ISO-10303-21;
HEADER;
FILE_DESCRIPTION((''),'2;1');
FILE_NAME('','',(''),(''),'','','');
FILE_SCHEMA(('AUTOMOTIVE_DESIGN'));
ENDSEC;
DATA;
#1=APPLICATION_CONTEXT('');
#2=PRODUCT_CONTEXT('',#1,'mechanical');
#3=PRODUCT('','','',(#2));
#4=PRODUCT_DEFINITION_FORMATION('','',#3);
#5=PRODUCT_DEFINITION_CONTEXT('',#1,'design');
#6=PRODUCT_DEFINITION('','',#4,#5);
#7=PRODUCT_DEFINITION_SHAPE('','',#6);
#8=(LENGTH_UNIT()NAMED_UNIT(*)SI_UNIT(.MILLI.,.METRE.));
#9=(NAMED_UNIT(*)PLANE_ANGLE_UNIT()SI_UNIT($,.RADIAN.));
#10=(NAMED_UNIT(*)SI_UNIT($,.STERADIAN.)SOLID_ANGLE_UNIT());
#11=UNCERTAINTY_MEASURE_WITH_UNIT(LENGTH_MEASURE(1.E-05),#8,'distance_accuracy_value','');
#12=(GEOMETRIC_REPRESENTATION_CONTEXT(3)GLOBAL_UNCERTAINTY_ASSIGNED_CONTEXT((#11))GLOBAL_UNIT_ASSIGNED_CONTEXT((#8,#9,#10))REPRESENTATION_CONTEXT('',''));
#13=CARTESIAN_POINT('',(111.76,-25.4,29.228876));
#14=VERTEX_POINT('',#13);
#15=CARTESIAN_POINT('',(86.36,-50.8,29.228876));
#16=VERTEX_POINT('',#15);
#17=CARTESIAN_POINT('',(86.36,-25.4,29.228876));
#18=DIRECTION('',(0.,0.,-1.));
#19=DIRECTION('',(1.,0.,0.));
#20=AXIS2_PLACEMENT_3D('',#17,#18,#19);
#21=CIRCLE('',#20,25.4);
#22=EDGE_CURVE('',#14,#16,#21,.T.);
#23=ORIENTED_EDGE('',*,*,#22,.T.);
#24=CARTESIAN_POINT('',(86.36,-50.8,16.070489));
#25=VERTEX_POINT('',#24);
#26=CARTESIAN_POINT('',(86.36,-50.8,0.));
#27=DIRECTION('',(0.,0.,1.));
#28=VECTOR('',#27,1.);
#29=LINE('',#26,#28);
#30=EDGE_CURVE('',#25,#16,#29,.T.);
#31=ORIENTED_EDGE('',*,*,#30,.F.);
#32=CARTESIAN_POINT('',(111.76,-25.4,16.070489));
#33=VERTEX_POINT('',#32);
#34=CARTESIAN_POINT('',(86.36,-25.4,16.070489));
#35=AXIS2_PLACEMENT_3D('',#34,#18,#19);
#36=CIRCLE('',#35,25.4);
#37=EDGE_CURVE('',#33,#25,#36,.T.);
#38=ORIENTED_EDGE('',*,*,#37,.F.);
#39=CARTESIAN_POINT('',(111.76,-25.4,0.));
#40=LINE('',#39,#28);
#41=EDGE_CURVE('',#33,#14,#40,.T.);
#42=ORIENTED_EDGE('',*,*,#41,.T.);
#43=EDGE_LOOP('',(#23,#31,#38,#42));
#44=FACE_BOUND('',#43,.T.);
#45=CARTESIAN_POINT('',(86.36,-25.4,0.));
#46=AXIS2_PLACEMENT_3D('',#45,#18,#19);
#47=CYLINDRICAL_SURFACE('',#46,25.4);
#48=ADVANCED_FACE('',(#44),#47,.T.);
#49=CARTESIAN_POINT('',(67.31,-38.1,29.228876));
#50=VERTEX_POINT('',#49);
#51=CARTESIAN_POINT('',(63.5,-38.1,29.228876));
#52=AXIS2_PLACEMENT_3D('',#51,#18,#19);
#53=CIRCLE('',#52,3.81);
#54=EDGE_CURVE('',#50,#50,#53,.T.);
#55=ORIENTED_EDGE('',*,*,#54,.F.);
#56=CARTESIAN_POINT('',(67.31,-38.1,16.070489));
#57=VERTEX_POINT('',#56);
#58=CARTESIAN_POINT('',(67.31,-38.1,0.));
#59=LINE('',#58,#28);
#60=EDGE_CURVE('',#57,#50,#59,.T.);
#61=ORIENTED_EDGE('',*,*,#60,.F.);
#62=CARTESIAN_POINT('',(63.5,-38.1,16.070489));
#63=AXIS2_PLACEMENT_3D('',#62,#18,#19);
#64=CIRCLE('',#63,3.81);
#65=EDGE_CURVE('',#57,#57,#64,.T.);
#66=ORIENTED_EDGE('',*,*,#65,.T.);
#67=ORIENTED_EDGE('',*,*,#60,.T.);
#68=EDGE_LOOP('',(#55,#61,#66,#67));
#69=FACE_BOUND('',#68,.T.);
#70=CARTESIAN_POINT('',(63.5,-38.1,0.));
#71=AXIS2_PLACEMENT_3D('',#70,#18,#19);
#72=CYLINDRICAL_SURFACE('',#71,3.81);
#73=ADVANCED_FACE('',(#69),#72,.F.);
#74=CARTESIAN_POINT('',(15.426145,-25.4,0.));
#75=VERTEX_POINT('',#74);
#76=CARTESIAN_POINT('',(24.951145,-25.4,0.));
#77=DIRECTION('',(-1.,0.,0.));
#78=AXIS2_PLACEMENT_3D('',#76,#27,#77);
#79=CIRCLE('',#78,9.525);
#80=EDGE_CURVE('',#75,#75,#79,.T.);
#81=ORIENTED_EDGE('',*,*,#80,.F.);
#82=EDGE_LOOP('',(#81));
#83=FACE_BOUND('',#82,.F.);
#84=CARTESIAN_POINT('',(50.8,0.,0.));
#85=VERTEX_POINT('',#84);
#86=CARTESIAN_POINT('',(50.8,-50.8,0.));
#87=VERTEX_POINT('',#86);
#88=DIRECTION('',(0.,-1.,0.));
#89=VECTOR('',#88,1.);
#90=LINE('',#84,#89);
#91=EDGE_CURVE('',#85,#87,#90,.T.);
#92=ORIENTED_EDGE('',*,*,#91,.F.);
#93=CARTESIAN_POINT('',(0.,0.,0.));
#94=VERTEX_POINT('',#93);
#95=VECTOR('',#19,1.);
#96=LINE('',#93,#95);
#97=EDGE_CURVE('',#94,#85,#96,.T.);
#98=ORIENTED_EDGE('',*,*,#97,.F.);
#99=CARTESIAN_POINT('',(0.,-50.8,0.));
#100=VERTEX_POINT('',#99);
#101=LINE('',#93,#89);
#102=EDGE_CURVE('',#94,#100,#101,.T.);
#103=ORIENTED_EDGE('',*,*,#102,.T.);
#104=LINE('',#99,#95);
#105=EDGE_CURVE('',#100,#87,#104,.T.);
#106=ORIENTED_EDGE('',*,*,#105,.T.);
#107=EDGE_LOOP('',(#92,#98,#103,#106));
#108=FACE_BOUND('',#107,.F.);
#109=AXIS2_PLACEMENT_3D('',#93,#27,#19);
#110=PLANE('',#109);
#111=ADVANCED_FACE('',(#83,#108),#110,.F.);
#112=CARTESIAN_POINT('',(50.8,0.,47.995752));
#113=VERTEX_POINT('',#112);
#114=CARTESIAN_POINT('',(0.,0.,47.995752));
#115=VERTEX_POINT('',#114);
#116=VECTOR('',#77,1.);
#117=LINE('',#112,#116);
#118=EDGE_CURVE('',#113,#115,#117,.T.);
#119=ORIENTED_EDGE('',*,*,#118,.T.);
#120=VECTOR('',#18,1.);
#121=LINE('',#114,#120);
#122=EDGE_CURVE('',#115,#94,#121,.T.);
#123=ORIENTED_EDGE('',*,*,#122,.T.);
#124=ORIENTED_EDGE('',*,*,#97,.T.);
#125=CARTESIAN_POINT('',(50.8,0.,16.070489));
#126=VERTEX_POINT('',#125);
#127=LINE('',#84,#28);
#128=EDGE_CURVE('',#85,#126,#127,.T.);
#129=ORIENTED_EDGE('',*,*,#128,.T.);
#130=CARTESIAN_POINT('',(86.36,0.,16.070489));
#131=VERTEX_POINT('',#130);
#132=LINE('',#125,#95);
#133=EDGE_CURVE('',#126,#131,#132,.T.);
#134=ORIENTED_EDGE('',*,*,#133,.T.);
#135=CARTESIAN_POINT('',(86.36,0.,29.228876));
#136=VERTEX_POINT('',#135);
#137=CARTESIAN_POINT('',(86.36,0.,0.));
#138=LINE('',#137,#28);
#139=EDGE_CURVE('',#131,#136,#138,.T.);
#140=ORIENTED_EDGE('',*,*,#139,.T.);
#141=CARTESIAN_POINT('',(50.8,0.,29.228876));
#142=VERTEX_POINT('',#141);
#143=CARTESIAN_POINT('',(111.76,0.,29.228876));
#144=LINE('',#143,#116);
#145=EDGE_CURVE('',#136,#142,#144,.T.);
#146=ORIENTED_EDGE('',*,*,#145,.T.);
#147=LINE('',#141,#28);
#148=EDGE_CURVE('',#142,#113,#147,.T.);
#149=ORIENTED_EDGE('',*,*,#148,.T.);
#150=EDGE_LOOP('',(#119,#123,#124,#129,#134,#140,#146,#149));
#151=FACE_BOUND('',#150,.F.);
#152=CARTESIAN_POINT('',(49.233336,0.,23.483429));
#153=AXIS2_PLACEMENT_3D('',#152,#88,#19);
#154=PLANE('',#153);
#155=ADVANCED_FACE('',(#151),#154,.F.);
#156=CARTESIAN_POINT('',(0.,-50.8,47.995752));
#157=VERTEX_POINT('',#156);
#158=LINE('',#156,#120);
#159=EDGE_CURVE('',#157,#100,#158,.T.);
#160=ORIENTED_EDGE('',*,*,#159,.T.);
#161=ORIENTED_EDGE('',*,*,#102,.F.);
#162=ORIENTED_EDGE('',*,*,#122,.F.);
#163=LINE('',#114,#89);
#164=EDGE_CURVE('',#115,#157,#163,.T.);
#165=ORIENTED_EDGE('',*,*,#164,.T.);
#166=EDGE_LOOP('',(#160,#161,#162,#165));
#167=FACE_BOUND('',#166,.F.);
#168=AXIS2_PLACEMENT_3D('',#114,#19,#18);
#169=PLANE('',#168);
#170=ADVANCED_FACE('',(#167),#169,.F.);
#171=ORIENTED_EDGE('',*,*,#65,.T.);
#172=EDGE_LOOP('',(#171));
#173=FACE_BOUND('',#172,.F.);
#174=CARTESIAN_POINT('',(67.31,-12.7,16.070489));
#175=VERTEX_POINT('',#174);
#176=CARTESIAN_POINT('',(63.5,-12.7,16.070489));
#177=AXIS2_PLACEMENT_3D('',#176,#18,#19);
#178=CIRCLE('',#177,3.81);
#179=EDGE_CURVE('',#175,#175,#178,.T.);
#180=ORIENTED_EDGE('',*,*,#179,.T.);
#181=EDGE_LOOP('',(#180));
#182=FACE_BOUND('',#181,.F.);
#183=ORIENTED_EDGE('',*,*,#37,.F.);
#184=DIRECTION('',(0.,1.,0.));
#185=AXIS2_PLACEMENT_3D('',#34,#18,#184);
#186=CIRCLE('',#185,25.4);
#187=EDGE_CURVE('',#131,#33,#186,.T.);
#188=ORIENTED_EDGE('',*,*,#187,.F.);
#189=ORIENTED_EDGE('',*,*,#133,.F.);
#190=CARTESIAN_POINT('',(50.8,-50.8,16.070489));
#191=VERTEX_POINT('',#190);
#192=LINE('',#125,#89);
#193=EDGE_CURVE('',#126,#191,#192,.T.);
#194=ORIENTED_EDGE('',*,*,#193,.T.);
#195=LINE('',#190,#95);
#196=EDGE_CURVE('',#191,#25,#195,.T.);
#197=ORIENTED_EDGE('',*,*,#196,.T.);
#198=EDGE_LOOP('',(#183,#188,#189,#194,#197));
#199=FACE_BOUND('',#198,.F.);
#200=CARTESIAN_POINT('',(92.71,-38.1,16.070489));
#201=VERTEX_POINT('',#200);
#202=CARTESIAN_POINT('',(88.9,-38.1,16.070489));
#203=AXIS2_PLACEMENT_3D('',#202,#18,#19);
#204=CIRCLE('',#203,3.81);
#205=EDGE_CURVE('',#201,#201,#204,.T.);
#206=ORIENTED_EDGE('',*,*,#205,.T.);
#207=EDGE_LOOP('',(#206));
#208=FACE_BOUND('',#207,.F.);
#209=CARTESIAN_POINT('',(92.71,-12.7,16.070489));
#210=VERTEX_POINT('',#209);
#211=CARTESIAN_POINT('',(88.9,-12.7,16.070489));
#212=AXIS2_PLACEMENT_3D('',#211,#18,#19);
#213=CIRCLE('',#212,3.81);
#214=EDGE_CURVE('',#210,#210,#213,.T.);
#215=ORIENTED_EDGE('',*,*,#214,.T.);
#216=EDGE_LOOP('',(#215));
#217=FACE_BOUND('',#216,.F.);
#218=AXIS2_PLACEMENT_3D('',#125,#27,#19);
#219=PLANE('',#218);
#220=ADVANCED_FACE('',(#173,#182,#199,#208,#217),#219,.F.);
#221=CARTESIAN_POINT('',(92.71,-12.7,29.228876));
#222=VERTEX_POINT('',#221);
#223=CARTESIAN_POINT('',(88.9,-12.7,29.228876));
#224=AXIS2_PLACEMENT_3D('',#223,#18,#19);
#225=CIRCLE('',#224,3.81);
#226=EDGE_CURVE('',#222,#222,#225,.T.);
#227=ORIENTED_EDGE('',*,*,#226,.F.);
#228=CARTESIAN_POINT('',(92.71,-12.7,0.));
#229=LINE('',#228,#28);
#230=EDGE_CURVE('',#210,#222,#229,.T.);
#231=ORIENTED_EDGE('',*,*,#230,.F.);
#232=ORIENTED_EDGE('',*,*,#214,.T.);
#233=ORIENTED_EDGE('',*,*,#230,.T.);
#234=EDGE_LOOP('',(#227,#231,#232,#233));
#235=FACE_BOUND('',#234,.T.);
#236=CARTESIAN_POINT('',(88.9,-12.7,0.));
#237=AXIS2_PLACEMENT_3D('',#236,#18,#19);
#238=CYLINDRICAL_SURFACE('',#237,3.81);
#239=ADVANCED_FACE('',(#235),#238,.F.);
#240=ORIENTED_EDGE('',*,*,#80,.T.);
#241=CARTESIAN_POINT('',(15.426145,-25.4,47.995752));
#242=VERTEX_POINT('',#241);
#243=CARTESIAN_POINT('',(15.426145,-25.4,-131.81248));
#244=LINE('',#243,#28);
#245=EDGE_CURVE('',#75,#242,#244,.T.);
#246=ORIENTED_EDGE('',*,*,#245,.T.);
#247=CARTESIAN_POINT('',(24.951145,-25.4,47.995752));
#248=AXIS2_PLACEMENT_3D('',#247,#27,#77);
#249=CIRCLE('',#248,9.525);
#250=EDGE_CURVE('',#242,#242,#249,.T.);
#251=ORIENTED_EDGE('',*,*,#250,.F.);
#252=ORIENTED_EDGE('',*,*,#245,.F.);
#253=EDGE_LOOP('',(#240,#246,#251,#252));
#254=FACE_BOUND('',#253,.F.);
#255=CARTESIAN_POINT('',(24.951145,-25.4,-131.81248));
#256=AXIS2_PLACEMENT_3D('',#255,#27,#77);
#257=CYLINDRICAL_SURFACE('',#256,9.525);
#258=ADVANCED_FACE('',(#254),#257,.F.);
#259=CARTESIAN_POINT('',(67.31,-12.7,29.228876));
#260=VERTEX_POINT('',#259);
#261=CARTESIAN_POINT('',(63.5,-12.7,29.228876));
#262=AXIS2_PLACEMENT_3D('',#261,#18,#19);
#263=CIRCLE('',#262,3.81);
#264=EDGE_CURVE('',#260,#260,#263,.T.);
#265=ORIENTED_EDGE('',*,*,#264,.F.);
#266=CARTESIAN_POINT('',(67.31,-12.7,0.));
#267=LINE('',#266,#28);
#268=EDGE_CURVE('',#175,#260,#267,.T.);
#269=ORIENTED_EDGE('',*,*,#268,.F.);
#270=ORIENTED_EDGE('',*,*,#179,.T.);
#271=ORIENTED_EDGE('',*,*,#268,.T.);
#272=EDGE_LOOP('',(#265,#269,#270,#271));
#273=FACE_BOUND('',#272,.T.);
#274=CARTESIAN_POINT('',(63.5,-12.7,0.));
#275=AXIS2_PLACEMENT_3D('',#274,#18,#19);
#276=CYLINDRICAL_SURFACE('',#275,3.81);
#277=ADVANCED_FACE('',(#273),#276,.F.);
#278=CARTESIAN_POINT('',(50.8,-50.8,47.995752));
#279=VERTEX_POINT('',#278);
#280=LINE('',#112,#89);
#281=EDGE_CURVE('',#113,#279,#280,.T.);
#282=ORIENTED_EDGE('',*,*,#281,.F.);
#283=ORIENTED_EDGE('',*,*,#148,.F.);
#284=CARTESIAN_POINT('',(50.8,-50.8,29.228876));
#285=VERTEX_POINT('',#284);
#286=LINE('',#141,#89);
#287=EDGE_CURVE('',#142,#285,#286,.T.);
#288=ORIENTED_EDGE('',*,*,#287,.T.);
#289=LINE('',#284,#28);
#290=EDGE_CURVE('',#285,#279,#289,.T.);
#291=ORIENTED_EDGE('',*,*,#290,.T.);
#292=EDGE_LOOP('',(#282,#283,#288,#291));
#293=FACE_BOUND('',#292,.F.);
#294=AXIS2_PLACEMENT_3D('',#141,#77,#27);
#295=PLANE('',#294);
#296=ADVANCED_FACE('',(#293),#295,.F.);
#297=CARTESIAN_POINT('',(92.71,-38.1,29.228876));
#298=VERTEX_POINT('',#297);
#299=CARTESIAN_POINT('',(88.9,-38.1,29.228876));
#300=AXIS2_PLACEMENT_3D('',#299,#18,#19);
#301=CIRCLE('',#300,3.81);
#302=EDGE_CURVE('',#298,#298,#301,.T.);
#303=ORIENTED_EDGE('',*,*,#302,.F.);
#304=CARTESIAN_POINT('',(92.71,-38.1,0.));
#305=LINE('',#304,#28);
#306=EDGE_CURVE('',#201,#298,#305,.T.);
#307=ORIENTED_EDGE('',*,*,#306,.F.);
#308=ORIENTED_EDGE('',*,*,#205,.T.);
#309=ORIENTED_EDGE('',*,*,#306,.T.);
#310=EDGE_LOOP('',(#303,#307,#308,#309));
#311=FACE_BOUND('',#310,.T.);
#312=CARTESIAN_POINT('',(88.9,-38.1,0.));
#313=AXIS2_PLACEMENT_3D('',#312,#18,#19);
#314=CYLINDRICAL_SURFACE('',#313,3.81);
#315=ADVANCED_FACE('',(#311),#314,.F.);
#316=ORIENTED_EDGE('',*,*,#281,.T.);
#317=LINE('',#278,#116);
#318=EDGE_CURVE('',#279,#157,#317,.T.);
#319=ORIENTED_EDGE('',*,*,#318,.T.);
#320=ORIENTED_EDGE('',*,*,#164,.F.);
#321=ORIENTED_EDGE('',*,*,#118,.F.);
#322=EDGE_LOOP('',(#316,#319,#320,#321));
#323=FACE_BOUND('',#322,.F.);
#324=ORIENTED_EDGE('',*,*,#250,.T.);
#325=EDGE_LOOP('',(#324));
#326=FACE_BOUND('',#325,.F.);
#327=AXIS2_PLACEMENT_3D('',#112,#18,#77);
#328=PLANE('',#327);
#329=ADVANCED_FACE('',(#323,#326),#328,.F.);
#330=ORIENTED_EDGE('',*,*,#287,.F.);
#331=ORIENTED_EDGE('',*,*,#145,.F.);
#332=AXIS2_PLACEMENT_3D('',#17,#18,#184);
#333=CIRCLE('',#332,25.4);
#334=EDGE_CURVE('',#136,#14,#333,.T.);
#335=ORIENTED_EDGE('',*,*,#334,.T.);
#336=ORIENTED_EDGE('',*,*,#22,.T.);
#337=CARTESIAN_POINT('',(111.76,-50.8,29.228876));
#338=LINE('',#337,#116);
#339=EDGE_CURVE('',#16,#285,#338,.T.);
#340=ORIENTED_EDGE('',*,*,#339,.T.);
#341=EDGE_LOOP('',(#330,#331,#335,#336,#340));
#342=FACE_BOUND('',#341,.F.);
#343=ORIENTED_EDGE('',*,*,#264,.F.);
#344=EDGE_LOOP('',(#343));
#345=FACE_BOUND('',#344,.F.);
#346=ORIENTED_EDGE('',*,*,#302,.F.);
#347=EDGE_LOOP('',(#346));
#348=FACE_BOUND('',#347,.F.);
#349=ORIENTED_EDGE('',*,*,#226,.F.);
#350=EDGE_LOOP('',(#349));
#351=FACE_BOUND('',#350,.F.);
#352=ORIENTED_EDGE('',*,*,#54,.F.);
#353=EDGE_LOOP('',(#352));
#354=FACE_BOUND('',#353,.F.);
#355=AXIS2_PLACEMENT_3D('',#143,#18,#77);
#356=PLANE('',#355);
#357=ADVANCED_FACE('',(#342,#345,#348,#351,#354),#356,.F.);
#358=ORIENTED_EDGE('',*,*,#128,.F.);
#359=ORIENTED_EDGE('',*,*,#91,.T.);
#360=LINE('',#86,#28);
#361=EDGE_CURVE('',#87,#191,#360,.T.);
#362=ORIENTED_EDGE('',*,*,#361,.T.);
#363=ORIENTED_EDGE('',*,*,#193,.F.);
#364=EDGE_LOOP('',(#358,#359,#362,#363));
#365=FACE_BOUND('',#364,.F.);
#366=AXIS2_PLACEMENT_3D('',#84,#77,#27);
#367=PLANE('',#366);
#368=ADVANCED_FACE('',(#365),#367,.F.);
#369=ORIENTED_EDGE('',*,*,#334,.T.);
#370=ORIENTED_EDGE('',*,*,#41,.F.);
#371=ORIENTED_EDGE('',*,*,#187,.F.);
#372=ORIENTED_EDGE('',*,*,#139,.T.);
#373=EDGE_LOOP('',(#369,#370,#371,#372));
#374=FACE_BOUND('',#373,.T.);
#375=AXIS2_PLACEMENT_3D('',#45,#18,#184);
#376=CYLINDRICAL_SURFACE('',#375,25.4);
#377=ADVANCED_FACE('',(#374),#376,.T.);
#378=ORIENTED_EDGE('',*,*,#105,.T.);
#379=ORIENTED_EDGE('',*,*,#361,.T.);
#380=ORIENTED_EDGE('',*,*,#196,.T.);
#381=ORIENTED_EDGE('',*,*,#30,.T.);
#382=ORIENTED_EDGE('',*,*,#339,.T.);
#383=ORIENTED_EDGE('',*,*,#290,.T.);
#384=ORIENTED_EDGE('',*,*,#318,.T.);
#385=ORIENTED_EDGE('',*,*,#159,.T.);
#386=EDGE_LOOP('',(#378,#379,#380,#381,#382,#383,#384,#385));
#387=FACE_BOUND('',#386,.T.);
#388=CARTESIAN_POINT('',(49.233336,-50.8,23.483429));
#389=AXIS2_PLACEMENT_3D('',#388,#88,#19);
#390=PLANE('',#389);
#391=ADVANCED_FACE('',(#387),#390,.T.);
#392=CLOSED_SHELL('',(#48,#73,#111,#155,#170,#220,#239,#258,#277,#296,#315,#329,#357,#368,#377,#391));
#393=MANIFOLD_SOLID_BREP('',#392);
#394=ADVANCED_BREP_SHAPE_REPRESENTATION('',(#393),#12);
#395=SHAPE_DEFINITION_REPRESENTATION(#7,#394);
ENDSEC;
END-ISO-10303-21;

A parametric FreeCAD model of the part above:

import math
import FreeCAD as App
import Part
import Sketcher
from FreeCAD import Vector
Q = App.Units.Quantity


def add_polygon(sketch, points):
    """Adds a closed chain of lines whose ends are joined by coincident constraints."""
    first, n = sketch.GeometryCount, len(points)
    for a, b in zip(points, points[1:] + points[:1]):
        sketch.addGeometry(Part.LineSegment(App.Vector(*a, 0), App.Vector(*b, 0)), False)
    for i in range(n):
        sketch.addConstraint(Sketcher.Constraint("Coincident", first + i, 2, first + (i + 1) % n, 1))

doc = App.newDocument("Part")
body = doc.addObject("PartDesign::Body", "Body")

sketch1 = body.newObject("Sketcher::SketchObject", "Sketch")
sketch1.AttachmentSupport = (doc.getObject("XZ_Plane"), [""])
sketch1.MapMode = "FlatFace"
add_polygon(sketch1, [(0, 47.995752), (0, 0), (50.8, 0), (50.8, 16.070489), (111.76, 16.070489), (111.76, 29.228876), (50.8, 29.228876), (50.8, 47.995752)])
sketch1.addConstraint([
    Sketcher.Constraint("Vertical", 0),
    Sketcher.Constraint("Horizontal", 1),
    Sketcher.Constraint("Vertical", 2),
    Sketcher.Constraint("Horizontal", 3),
    Sketcher.Constraint("Vertical", 4),
    Sketcher.Constraint("Horizontal", 5),
    Sketcher.Constraint("Vertical", 6),
    Sketcher.Constraint("Horizontal", 7),
    Sketcher.Constraint("Coincident", 0, 2, -1, 1),
    Sketcher.Constraint("Vertical", 2, 2, 5, 2),
    Sketcher.Constraint("DistanceX", 1, 1, 1, 2, Q("2 in")),
    Sketcher.Constraint("DistanceX", 3, 1, 3, 2, Q("2.4 in")),
    Sketcher.Constraint("DistanceY", 2, 2, 6, 2, Q("1.2569001 in")),
    Sketcher.Constraint("DistanceY", 0, 2, 0, 1, Q("47.995752 mm")),
    Sketcher.Constraint("DistanceY", 4, 1, 4, 2, Q("13.158388 mm")),
])
pad1 = body.newObject("PartDesign::Pad", "Pad")
pad1.Profile = sketch1
pad1.Length = Q("2 in")

sketch2 = body.newObject("Sketcher::SketchObject", "Sketch001")
sketch2.AttachmentSupport = (doc.getObject("XY_Plane"), [""])
sketch2.MapMode = "FlatFace"
sketch2.addGeometry(Part.Circle(Vector(24.951145, -25.4, 0), Vector(0, 0, 1), 9.525), False)
sketch2.addConstraint([
    Sketcher.Constraint("Diameter", 0, Q("0.75 in")),
    Sketcher.Constraint("DistanceY", 0, 3, -1, 1, Q("1 in")),
    Sketcher.Constraint("DistanceX", -1, 1, 0, 3, Q("24.951145 mm")),
])
doc.recompute()
hole = body.newObject("PartDesign::Hole", "Hole")
hole.Profile = sketch2
hole.ThreadType = "None"
hole.Diameter = Q("0.75 in")
hole.DepthType = "ThroughAll"
hole.Reversed = True

sketch3 = body.newObject("Sketcher::SketchObject", "Sketch002")
sketch3.AttachmentSupport = (doc.getObject("XY_Plane"), [""])
sketch3.MapMode = "FlatFace"
sketch3.addGeometry([
    Part.Circle(Vector(63.5, -12.7, 0), Vector(0, 0, 1), 3.81),
    Part.Circle(Vector(63.5, -38.1, 0), Vector(0, 0, 1), 3.81),
    Part.Circle(Vector(88.9, -12.7, 0), Vector(0, 0, 1), 3.81),
    Part.Circle(Vector(88.9, -38.1, 0), Vector(0, 0, 1), 3.81),
    Part.LineSegment(Vector(111.76, -50.8, 0), Vector(111.76, -25.4, 0)),
    Part.ArcOfCircle(Part.Circle(Vector(86.36, -25.4, 0), Vector(0, 0, 1), 25.4), math.radians(-90), math.radians(0)),
    Part.LineSegment(Vector(86.36, -50.8, 0), Vector(111.76, -50.8, 0)),
    Part.ArcOfCircle(Part.Circle(Vector(86.36, -25.4, 0), Vector(0, 0, 1), 25.4), math.radians(0), math.radians(90)),
    Part.LineSegment(Vector(111.76, -25.4, 0), Vector(111.76, 0, 0)),
    Part.LineSegment(Vector(111.76, 0, 0), Vector(86.36, 0, 0)),
], False)
sketch3.addConstraint([
    Sketcher.Constraint("Tangent", 4, 2, 5, 2),
    Sketcher.Constraint("Tangent", 5, 1, 6, 1),
    Sketcher.Constraint("Coincident", 6, 2, 4, 1),
    Sketcher.Constraint("Tangent", 7, 1, 8, 1),
    Sketcher.Constraint("Coincident", 8, 2, 9, 1),
    Sketcher.Constraint("Tangent", 9, 2, 7, 2),
    Sketcher.Constraint("Vertical", 4),
    Sketcher.Constraint("Horizontal", 6),
    Sketcher.Constraint("Vertical", 8),
    Sketcher.Constraint("Horizontal", 9),
    Sketcher.Constraint("Coincident", 7, 3, 5, 3),
    Sketcher.Constraint("Equal", 0, 1),
    Sketcher.Constraint("Equal", 1, 2),
    Sketcher.Constraint("Equal", 2, 3),
    Sketcher.Constraint("Equal", 5, 7),
    Sketcher.Constraint("PointOnObject", 8, 2, -1),
    Sketcher.Constraint("Horizontal", 0, 3, 2, 3),
    Sketcher.Constraint("Horizontal", 1, 3, 3, 3),
    Sketcher.Constraint("Vertical", 0, 3, 1, 3),
    Sketcher.Constraint("Vertical", 2, 3, 3, 3),
    Sketcher.Constraint("Radius", 5, Q("1 in")),
    Sketcher.Constraint("Diameter", 0, Q("0.3 in")),
    Sketcher.Constraint("DistanceY", 1, 3, 0, 3, Q("1 in")),
    Sketcher.Constraint("DistanceX", 0, 3, 2, 3, Q("1 in")),
    Sketcher.Constraint("DistanceX", -1, 1, 0, 3, Q("2.5 in")),
    Sketcher.Constraint("DistanceY", 0, 3, -1, 1, Q("0.5 in")),
    Sketcher.Constraint("DistanceX", -1, 1, 5, 3, Q("3.4 in")),
])
pocket1 = body.newObject("PartDesign::Pocket", "Pocket")
pocket1.Profile = sketch3
pocket1.Type = "ThroughAll"
pocket1.Reversed = True

doc.recompute()
